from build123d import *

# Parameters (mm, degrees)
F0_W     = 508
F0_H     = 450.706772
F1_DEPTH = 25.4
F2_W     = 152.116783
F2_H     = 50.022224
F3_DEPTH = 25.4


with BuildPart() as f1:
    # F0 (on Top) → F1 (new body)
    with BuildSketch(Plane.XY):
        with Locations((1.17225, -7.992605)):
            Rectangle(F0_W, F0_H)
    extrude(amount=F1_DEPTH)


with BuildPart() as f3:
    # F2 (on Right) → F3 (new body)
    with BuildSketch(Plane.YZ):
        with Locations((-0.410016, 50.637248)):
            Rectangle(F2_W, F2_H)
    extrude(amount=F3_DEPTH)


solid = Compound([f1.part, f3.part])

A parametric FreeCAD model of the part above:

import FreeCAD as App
import Part
import Sketcher
from FreeCAD import Vector
Q = App.Units.Quantity


def add_polygon(sketch, points):
    """Adds a closed chain of lines whose ends are joined by coincident constraints."""
    first, n = sketch.GeometryCount, len(points)
    for a, b in zip(points, points[1:] + points[:1]):
        sketch.addGeometry(Part.LineSegment(App.Vector(*a, 0), App.Vector(*b, 0)), False)
    for i in range(n):
        sketch.addConstraint(Sketcher.Constraint("Coincident", first + i, 2, first + (i + 1) % n, 1))

doc = App.newDocument("Part")
body = doc.addObject("PartDesign::Body", "Body")

# Sketch on XY plane
sketch1 = body.newObject("Sketcher::SketchObject", "Sketch")
sketch1.AttachmentSupport = (doc.getObject("XY_Plane"), [""])
sketch1.MapMode = "FlatFace"
add_polygon(sketch1, [(-253, 217), (-253, -233), (255, -233), (255, 217)])  # lines 0-3
sketch1.addConstraint(Sketcher.Constraint("Vertical", 0))
sketch1.addConstraint(Sketcher.Constraint("Horizontal", 1))
sketch1.addConstraint(Sketcher.Constraint("Vertical", 2))
sketch1.addConstraint(Sketcher.Constraint("Horizontal", 3))
sketch1.addConstraint(Sketcher.Constraint("DistanceX", 1, 1, 1, 2, Q("20 in")))
sketch1.addConstraint(Sketcher.Constraint("DistanceY", 0, 2, 0, 1, Q("450.706772 mm")))
sketch1.addConstraint(Sketcher.Constraint("DistanceX", 0, 2, -1, 1, Q("252.82775 mm")))
sketch1.addConstraint(Sketcher.Constraint("DistanceY", 0, 2, -1, 1, Q("233.345991 mm")))
pad1 = body.newObject("PartDesign::Pad", "Pad")
pad1.Profile = sketch1
pad1.Length = Q("1 in")
body2 = doc.addObject("PartDesign::Body", "Body001")

# Sketch on YZ plane
sketch2 = body2.newObject("Sketcher::SketchObject", "Sketch001")
sketch2.AttachmentSupport = (doc.getObject("YZ_Plane001"), [""])
sketch2.MapMode = "FlatFace"
add_polygon(sketch2, [(-76, 76), (-76, 26), (76, 26), (76, 76)])  # lines 0-3
sketch2.addConstraint(Sketcher.Constraint("Vertical", 0))
sketch2.addConstraint(Sketcher.Constraint("Horizontal", 1))
sketch2.addConstraint(Sketcher.Constraint("Vertical", 2))
sketch2.addConstraint(Sketcher.Constraint("Horizontal", 3))
sketch2.addConstraint(Sketcher.Constraint("DistanceX", 1, 1, 1, 2, Q("152.116783 mm")))
sketch2.addConstraint(Sketcher.Constraint("DistanceY", 0, 2, 0, 1, Q("50.022224 mm")))
sketch2.addConstraint(Sketcher.Constraint("DistanceY", -1, 1, 2, 2, Q("75.64836 mm")))
sketch2.addConstraint(Sketcher.Constraint("DistanceX", 0, 2, -1, 1, Q("76.468407 mm")))
pad2 = body2.newObject("PartDesign::Pad", "Pad001")
pad2.Profile = sketch2
pad2.Length = Q("1 in")

doc.recompute()
